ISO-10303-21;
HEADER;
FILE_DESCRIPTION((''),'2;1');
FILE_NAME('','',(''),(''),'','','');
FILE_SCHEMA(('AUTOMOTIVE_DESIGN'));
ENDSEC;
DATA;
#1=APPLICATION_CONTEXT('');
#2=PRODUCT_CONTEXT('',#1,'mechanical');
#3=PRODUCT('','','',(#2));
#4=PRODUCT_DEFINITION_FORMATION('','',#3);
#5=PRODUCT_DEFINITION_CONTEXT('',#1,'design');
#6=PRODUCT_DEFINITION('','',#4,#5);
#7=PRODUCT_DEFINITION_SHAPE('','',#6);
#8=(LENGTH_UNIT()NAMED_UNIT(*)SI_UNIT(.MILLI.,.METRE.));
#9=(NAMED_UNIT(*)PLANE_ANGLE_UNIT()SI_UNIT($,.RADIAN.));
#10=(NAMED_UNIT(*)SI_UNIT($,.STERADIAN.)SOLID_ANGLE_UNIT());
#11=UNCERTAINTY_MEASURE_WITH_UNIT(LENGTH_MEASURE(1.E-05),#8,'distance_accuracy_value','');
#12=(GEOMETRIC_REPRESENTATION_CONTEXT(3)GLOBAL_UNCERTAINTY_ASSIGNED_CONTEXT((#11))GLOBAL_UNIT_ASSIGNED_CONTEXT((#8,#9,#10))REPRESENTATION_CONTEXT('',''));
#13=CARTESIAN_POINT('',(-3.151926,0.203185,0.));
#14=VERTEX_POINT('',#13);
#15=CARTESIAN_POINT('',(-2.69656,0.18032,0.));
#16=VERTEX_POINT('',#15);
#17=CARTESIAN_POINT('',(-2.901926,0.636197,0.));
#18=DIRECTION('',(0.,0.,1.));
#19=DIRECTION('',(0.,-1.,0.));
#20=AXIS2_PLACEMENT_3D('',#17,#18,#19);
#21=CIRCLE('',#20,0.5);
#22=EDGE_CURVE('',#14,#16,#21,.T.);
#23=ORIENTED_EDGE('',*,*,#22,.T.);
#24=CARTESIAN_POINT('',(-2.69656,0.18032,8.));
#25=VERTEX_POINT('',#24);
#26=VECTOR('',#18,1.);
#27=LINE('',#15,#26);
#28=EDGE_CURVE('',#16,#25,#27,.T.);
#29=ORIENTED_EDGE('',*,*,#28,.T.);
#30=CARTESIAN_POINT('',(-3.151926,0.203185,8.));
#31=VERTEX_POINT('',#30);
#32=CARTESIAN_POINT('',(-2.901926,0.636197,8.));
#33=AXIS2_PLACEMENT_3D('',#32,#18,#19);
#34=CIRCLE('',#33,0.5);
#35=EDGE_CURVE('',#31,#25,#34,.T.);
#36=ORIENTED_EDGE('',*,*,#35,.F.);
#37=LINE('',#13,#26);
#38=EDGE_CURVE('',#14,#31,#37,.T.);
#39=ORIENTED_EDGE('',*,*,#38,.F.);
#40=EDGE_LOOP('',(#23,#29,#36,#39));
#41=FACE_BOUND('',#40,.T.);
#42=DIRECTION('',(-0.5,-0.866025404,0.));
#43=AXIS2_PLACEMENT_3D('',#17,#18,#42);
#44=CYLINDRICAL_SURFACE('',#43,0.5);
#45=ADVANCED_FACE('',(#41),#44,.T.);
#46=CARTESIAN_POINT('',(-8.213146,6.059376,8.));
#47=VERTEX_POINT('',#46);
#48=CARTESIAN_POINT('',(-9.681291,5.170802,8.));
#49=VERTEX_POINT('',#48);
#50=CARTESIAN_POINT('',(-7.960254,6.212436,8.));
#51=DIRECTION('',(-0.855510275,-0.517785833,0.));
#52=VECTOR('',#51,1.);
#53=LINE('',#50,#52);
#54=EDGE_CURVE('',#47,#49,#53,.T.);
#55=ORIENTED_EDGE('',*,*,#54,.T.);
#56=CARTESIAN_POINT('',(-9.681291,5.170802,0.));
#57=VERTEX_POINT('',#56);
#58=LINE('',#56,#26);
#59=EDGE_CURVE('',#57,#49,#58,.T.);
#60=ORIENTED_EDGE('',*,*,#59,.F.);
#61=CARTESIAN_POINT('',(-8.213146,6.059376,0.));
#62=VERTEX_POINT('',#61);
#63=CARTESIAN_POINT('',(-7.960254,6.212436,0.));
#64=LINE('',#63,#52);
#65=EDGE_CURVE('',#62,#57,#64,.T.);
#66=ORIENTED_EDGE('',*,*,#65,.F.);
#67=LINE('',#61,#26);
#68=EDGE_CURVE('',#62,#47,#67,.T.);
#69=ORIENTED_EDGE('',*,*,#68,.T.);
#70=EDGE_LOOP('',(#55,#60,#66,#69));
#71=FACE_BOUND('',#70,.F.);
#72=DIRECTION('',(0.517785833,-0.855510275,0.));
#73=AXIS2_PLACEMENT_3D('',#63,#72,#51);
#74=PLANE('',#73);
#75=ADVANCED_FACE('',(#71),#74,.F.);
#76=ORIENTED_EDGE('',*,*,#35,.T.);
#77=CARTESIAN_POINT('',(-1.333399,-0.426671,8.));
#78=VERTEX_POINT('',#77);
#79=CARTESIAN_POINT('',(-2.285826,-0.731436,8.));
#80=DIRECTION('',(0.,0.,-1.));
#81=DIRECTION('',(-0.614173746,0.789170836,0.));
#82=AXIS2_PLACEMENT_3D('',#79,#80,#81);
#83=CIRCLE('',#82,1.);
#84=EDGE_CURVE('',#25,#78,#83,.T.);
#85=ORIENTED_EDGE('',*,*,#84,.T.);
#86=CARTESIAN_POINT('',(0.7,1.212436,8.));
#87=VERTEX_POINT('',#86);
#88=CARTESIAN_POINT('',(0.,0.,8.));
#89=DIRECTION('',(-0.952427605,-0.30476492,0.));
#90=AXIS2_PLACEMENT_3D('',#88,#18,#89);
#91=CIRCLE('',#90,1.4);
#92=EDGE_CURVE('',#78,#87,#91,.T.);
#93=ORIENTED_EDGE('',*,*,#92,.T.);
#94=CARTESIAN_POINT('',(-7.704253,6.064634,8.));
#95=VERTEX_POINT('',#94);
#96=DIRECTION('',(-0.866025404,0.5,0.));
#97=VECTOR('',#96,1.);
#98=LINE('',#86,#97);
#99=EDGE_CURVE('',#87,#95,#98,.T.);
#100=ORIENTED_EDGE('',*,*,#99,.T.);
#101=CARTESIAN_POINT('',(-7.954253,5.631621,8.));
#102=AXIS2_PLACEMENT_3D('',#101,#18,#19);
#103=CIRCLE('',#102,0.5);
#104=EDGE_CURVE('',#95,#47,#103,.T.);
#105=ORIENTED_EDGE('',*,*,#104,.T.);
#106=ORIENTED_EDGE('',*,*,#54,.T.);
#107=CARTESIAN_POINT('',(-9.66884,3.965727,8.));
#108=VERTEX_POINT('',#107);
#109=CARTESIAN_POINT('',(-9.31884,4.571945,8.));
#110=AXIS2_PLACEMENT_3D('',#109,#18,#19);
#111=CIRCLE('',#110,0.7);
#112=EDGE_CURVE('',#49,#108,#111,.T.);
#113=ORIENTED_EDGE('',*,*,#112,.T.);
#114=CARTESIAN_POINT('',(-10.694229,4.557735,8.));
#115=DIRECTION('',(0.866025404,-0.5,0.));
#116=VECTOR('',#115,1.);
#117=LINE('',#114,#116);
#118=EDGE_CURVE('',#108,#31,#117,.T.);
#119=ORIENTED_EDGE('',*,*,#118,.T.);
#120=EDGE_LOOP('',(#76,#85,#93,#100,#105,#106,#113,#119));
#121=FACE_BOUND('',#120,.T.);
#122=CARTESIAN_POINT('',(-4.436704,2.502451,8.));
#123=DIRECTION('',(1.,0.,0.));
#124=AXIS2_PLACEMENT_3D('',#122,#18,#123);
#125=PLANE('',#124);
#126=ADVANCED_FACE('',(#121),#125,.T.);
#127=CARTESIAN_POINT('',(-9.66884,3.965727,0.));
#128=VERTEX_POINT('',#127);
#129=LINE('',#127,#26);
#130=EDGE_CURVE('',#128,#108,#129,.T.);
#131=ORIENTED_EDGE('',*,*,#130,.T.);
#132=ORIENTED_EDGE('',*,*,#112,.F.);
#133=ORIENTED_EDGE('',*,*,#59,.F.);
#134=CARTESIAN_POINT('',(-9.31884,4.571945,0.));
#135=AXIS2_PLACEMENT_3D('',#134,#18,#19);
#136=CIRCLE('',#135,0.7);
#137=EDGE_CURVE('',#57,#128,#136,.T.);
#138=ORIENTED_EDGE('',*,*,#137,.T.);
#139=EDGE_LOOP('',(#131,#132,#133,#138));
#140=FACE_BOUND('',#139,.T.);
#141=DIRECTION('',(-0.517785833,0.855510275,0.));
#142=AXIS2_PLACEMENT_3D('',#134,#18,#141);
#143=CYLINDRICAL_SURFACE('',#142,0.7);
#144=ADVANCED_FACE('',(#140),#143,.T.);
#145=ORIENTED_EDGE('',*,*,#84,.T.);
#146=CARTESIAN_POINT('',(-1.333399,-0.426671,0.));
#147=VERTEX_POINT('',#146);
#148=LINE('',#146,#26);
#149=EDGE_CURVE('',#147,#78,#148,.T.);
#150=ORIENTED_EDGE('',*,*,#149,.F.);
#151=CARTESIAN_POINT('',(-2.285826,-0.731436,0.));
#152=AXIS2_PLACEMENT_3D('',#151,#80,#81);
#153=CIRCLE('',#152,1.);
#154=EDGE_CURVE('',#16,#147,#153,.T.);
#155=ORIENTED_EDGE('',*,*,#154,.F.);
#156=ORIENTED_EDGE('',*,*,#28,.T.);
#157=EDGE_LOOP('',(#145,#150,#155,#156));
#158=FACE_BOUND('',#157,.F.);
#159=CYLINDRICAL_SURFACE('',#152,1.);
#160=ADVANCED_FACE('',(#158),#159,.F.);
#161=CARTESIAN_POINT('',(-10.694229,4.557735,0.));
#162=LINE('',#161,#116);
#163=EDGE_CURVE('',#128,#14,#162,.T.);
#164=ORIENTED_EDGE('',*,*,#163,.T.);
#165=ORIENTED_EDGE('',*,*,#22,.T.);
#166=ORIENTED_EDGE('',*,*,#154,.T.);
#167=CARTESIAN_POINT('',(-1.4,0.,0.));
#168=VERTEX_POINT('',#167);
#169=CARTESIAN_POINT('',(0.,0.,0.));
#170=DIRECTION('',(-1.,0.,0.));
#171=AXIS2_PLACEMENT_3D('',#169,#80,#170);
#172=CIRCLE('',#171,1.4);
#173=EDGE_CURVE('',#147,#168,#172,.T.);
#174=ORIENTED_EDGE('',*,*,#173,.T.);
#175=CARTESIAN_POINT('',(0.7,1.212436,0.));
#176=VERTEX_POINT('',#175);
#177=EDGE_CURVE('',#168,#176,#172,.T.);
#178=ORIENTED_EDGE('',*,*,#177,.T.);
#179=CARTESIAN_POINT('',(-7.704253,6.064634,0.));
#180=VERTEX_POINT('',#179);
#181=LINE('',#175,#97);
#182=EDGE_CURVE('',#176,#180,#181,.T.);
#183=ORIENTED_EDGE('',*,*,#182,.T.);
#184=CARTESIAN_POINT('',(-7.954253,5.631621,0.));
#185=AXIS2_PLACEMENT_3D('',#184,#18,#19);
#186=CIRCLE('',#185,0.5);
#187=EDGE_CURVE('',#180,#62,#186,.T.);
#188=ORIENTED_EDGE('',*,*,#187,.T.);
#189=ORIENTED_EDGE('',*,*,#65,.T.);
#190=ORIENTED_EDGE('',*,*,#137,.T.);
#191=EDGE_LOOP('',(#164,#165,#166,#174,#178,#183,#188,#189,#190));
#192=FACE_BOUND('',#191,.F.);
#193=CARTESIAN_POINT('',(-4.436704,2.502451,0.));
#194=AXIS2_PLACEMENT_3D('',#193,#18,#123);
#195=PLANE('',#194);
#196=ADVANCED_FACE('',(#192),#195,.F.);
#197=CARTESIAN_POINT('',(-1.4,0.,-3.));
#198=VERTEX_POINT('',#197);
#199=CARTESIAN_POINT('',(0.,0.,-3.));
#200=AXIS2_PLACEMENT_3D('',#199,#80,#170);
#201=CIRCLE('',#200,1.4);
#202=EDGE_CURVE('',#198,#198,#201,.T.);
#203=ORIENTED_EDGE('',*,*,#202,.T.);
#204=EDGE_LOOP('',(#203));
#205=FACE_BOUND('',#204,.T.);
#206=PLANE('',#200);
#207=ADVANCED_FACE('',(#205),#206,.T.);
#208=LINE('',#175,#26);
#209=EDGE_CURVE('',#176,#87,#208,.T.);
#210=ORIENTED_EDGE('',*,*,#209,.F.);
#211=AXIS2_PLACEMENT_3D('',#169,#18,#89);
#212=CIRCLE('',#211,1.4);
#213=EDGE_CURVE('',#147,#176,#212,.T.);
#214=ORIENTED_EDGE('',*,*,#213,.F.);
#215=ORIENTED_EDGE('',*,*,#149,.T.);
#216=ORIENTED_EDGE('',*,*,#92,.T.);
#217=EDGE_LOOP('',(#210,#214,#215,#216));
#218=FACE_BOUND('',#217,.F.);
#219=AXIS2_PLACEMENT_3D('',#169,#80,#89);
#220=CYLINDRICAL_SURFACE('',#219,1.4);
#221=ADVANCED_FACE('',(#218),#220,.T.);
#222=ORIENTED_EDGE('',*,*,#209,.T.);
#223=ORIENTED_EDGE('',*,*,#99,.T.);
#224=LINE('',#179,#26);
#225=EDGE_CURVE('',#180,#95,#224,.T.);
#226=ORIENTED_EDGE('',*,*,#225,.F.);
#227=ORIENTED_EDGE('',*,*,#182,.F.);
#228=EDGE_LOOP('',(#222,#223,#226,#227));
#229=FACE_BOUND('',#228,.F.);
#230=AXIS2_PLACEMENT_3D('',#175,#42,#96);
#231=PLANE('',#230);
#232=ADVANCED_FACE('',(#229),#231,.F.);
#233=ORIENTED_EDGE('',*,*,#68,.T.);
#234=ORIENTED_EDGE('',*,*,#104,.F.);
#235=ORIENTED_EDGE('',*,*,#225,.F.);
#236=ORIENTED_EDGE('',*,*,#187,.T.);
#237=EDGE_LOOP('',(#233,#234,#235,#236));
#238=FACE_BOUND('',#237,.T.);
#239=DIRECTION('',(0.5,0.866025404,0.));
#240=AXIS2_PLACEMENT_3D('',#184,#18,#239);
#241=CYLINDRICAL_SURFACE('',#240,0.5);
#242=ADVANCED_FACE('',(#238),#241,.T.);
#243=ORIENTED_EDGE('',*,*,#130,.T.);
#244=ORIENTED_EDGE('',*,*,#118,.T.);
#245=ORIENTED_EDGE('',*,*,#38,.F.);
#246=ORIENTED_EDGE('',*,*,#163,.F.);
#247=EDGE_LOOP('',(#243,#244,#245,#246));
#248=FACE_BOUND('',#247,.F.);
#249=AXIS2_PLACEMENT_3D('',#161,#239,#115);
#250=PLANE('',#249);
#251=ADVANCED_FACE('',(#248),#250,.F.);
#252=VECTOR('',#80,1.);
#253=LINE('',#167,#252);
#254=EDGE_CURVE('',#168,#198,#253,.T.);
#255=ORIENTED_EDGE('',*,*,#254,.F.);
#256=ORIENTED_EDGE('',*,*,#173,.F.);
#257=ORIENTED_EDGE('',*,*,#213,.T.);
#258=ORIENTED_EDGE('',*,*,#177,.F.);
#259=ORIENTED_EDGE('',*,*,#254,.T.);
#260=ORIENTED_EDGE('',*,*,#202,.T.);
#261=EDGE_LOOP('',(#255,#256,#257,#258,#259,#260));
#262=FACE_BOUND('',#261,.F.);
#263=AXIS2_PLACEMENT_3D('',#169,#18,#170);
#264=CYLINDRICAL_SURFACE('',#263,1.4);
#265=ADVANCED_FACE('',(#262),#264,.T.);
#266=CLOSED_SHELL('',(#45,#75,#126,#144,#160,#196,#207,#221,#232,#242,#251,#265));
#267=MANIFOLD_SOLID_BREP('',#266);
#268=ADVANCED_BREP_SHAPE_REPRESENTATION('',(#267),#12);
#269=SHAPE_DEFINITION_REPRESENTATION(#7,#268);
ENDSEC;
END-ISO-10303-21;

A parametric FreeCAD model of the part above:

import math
import FreeCAD as App
import Part
import Sketcher
from FreeCAD import Vector
Q = App.Units.Quantity


def edges_at(feature, points):
    """Names of the edges that pass closest to the given points."""
    edges = feature.Shape.Edges
    near = lambda p: min(range(len(edges)), key=lambda i: edges[i].distToShape(Part.Vertex(*p))[0])
    return sorted({f"Edge{near(p) + 1}" for p in points})

doc = App.newDocument("Part")
params = doc.addObject("Spreadsheet::Sheet", "Params")
for row, (alias, value) in enumerate([
    ("sketch1_radius", "1 mm"),
    ("sketch1_radius2", "1.4 mm"),
    ("sketch1_length", "10 mm"),
    ("sketch1_length2", "9 mm"),
    ("pad1_length", "8 mm"),
    ("fillet_radius", "0.5 mm"),
    ("fillet2_radius", "0.7 mm"),
    ("sketch2_diameter", "2.8 mm"),
    ("pad2_length", "3 mm"),
], start=1):
    params.set(f"A{row}", alias)
    params.set(f"B{row}", "=" + value)
    params.setAlias(f"B{row}", alias)

body = doc.addObject("PartDesign::Body", "Body")

# Sketch on XY plane
sketch1 = body.newObject("Sketcher::SketchObject", "Sketch")
sketch1.AttachmentSupport = (doc.getObject("XY_Plane"), [""])
sketch1.MapMode = "FlatFace"
sketch1.addGeometry([
    Part.LineSegment(Vector(0.7, 1.2, 0), Vector(-8, 6.2, 0)),  # 0
    Part.LineSegment(Vector(-8, 6.2, 0), Vector(-10.7, 4.6, 0)),  # 1
    Part.LineSegment(Vector(-10.7, 4.6, 0), Vector(-2.9, 0.1, 0)),  # 2
    Part.ArcOfCircle(Part.Circle(Vector(-2.3, -0.7, 0), Vector(0, 0, 1), 1), math.radians(18), math.radians(128)),  # 3
    Part.ArcOfCircle(Part.Circle(Vector(0, 0, 0), Vector(0, 0, 1), 1.4), math.radians(-162), math.radians(60)),  # 4
], False)
sketch1.addConstraint([
    Sketcher.Constraint("Coincident", 0, 2, 1, 1),
    Sketcher.Constraint("Coincident", 1, 2, 2, 1),
    Sketcher.Constraint("Coincident", 2, 2, 3, 2),
    Sketcher.Constraint("Tangent", 3, 1, 4, 1),
    Sketcher.Constraint("Tangent", 4, 2, 0, 1),
    Sketcher.Constraint("Coincident", 4, 3, -1, 1),
    Sketcher.Constraint("Parallel", 0, 2),
    Sketcher.Constraint("Radius", 3, Q("1 mm")),
    Sketcher.Constraint("Radius", 4, Q("1.4 mm")),
    Sketcher.Constraint("Angle", 0, Q("150 deg")),
    Sketcher.Constraint("Distance", 0, Q("10 mm")),
    Sketcher.Constraint("Distance", 2, Q("9 mm")),
    Sketcher.Constraint("DistanceX", 2, 2, -1, 1, Q("2.9 mm")),
    Sketcher.Constraint("DistanceX", 3, 1, -1, 1, Q("1.333399 mm")),
])
sketch1.setExpression("Constraints[7]", "Params.sketch1_radius")
sketch1.setExpression("Constraints[8]", "Params.sketch1_radius2")
sketch1.setExpression("Constraints[10]", "Params.sketch1_length")
sketch1.setExpression("Constraints[11]", "Params.sketch1_length2")
pad1 = body.newObject("PartDesign::Pad", "Pad")
pad1.Profile = sketch1
pad1.setExpression("Length", "Params.pad1_length")
doc.recompute()

fillet = body.newObject("PartDesign::Fillet", "Fillet")
fillet.Base = (pad1, edges_at(pad1, [(-7.96, 6.212, 4), (-2.9, 0.058, 4)]))
fillet.setExpression("Radius", "Params.fillet_radius")
doc.recompute()

fillet2 = body.newObject("PartDesign::Fillet", "Fillet001")
fillet2.Base = (fillet, edges_at(fillet, [(-10.694, 4.558, 4)]))
fillet2.setExpression("Radius", "Params.fillet2_radius")

# Sketch on XY plane
sketch2 = body.newObject("Sketcher::SketchObject", "Sketch001")
sketch2.AttachmentSupport = (doc.getObject("XY_Plane"), [""])
sketch2.MapMode = "FlatFace"
sketch2.addGeometry(Part.Circle(Vector(0, 0, 0), Vector(0, 0, 1), 1.4), False)
sketch2.addConstraint([
    Sketcher.Constraint("Coincident", 0, 3, -1, 1),
    Sketcher.Constraint("Diameter", 0, Q("2.8 mm")),
])
sketch2.setExpression("Constraints[1]", "Params.sketch2_diameter")
pad2 = body.newObject("PartDesign::Pad", "Pad001")
pad2.Profile = sketch2
pad2.setExpression("Length", "Params.pad2_length")
pad2.Reversed = True

doc.recompute()
